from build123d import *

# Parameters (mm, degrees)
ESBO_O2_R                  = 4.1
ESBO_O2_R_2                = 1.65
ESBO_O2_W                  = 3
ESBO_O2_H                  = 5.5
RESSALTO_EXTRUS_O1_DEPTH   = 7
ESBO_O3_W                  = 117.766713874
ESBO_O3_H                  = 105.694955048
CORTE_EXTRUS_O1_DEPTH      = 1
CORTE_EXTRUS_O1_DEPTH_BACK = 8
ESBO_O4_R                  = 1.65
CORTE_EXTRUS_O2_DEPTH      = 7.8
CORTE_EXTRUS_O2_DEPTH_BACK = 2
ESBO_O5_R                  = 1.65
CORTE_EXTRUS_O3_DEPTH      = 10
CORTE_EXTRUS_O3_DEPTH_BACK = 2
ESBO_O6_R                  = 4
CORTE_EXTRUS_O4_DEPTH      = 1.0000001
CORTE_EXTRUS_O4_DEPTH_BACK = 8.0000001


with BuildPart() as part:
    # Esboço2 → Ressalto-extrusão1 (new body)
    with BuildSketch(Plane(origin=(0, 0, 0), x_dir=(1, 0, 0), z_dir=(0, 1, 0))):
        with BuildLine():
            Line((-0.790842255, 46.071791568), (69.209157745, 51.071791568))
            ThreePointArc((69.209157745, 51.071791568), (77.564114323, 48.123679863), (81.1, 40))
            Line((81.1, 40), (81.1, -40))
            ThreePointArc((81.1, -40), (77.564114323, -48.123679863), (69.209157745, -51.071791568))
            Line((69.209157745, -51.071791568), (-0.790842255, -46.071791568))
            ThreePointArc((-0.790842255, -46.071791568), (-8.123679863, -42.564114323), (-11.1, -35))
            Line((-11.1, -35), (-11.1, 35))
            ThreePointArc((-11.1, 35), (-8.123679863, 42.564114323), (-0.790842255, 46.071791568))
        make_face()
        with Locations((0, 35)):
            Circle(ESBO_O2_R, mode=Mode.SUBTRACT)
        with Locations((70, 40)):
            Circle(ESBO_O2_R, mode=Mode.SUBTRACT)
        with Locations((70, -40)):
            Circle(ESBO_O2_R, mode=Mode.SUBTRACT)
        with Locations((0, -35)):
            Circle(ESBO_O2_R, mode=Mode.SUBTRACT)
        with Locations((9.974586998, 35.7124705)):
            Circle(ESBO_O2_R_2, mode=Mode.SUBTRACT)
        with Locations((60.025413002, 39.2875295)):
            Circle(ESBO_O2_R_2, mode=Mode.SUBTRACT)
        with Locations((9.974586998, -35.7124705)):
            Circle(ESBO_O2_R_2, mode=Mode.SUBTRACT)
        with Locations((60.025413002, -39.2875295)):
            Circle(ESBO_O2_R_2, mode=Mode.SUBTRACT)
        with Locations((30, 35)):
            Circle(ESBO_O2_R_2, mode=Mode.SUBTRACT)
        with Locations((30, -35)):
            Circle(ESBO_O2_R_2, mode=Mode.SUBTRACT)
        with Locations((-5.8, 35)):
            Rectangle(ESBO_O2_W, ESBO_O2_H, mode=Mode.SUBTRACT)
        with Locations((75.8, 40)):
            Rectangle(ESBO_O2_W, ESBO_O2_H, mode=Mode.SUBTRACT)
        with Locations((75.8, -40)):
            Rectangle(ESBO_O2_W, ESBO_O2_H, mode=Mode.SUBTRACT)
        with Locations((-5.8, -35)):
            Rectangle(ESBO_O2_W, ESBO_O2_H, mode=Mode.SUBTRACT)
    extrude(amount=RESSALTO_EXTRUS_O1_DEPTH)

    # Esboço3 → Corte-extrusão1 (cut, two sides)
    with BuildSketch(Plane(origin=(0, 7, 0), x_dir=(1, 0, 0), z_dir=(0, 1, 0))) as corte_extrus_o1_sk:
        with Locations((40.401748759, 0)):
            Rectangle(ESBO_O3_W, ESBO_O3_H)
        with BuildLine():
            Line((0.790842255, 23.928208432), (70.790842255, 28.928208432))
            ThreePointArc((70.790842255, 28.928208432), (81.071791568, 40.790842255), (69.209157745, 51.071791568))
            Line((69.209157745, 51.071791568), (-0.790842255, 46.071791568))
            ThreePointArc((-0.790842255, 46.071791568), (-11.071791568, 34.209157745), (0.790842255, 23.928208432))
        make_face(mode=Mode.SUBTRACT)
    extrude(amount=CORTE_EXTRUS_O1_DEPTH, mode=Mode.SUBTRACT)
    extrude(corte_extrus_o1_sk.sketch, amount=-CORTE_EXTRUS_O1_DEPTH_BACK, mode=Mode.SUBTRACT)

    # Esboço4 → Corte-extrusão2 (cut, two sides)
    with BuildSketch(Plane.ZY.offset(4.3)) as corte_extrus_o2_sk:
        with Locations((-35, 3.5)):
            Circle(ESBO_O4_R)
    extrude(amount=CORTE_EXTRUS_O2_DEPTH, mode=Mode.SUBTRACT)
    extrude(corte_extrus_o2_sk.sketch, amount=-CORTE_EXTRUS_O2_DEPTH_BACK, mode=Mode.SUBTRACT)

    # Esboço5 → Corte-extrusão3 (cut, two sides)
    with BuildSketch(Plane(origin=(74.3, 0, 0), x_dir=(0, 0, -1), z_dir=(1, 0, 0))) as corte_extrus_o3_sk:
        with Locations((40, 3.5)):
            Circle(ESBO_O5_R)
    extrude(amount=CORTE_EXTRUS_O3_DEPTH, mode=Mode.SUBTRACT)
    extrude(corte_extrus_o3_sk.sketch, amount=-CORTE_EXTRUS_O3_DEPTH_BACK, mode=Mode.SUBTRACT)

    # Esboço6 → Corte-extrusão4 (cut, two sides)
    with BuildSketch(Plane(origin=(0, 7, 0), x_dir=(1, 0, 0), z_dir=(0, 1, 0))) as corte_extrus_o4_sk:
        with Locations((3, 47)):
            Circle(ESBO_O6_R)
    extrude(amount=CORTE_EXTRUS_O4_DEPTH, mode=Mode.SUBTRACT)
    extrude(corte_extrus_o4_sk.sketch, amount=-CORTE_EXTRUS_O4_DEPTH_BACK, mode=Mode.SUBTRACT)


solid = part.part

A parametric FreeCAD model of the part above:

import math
import FreeCAD as App
import Part
import Sketcher

V = App.Vector
Q = App.Units.Quantity

doc = App.newDocument("Part")
body = doc.addObject("PartDesign::Body", "Body")

# Sketch on XZ plane
sketch1 = body.newObject("Sketcher::SketchObject", "Sketch")
sketch1.AttachmentSupport = (doc.getObject("XZ_Plane"), [""])
sketch1.MapMode = "FlatFace"
sketch1.addGeometry(Part.LineSegment(V(69.2, -51.1, 0), V(-0.8, -46.1, 0)), False)
sketch1.addGeometry(Part.ArcOfCircle(Part.Circle(V(0, -35, 0), V(0, 0, 1), 11.1), math.radians(180), math.radians(266)), False)
sketch1.addGeometry(Part.LineSegment(V(-11.1, -35, 0), V(-11.1, 35, 0)), False)
sketch1.addGeometry(Part.ArcOfCircle(Part.Circle(V(0, 35, 0), V(0, 0, 1), 11.1), math.radians(94), math.radians(180)), False)
sketch1.addGeometry(Part.LineSegment(V(-0.8, 46.1, 0), V(69.2, 51.1, 0)), False)
sketch1.addGeometry(Part.ArcOfCircle(Part.Circle(V(70, 40, 0), V(0, 0, 1), 11.1), math.radians(0), math.radians(94)), False)
sketch1.addGeometry(Part.LineSegment(V(81.1, 40, 0), V(81.1, -40, 0)), False)
sketch1.addGeometry(Part.ArcOfCircle(Part.Circle(V(70, -40, 0), V(0, 0, 1), 11.1), math.radians(-94), math.radians(0)), False)
sketch1.addGeometry(Part.LineSegment(V(74.3, 42.8, 0), V(74.3, 37.2, 0)), False)
sketch1.addGeometry(Part.LineSegment(V(74.3, 37.2, 0), V(77.3, 37.2, 0)), False)
sketch1.addGeometry(Part.LineSegment(V(77.3, 37.2, 0), V(77.3, 42.8, 0)), False)
sketch1.addGeometry(Part.LineSegment(V(77.3, 42.8, 0), V(74.3, 42.8, 0)), False)
sketch1.addGeometry(Part.Circle(V(70, 40, 0), V(0, 0, 1), 4.1), False)
sketch1.addGeometry(Part.Circle(V(60, 39.3, 0), V(0, 0, 1), 1.6), False)
sketch1.addGeometry(Part.Circle(V(30, 35, 0), V(0, 0, 1), 1.6), False)
sketch1.addGeometry(Part.Circle(V(10, 35.7, 0), V(0, 0, 1), 1.6), False)
sketch1.addGeometry(Part.Circle(V(0, 35, 0), V(0, 0, 1), 4.1), False)
sketch1.addGeometry(Part.LineSegment(V(-7.3, 37.8, 0), V(-7.3, 32.2, 0)), False)
sketch1.addGeometry(Part.LineSegment(V(-7.3, 32.2, 0), V(-4.3, 32.2, 0)), False)
sketch1.addGeometry(Part.LineSegment(V(-4.3, 32.2, 0), V(-4.3, 37.8, 0)), False)
sketch1.addGeometry(Part.LineSegment(V(-4.3, 37.8, 0), V(-7.3, 37.8, 0)), False)
sketch1.addGeometry(Part.LineSegment(V(74.3, -37.2, 0), V(74.3, -42.8, 0)), False)
sketch1.addGeometry(Part.LineSegment(V(74.3, -42.8, 0), V(77.3, -42.8, 0)), False)
sketch1.addGeometry(Part.LineSegment(V(77.3, -42.8, 0), V(77.3, -37.2, 0)), False)
sketch1.addGeometry(Part.LineSegment(V(77.3, -37.2, 0), V(74.3, -37.2, 0)), False)
sketch1.addGeometry(Part.Circle(V(70, -40, 0), V(0, 0, 1), 4.1), False)
sketch1.addGeometry(Part.Circle(V(60, -39.3, 0), V(0, 0, 1), 1.6), False)
sketch1.addGeometry(Part.Circle(V(30, -35, 0), V(0, 0, 1), 1.6), False)
sketch1.addGeometry(Part.Circle(V(10, -35.7, 0), V(0, 0, 1), 1.6), False)
sketch1.addGeometry(Part.Circle(V(0, -35, 0), V(0, 0, 1), 4.1), False)
sketch1.addGeometry(Part.LineSegment(V(-7.3, -32.2, 0), V(-7.3, -37.8, 0)), False)
sketch1.addGeometry(Part.LineSegment(V(-7.3, -37.8, 0), V(-4.3, -37.8, 0)), False)
sketch1.addGeometry(Part.LineSegment(V(-4.3, -37.8, 0), V(-4.3, -32.2, 0)), False)
sketch1.addGeometry(Part.LineSegment(V(-4.3, -32.2, 0), V(-7.3, -32.2, 0)), False)
sketch1.addConstraint(Sketcher.Constraint("Tangent", 0, 2, 1, 2))
sketch1.addConstraint(Sketcher.Constraint("Tangent", 1, 1, 2, 1))
sketch1.addConstraint(Sketcher.Constraint("Tangent", 2, 2, 3, 2))
sketch1.addConstraint(Sketcher.Constraint("Tangent", 3, 1, 4, 1))
sketch1.addConstraint(Sketcher.Constraint("Tangent", 4, 2, 5, 2))
sketch1.addConstraint(Sketcher.Constraint("Tangent", 5, 1, 6, 1))
sketch1.addConstraint(Sketcher.Constraint("Tangent", 6, 2, 7, 2))
sketch1.addConstraint(Sketcher.Constraint("Tangent", 7, 1, 0, 1))
sketch1.addConstraint(Sketcher.Constraint("Coincident", 8, 2, 9, 1))
sketch1.addConstraint(Sketcher.Constraint("Coincident", 9, 2, 10, 1))
sketch1.addConstraint(Sketcher.Constraint("Coincident", 10, 2, 11, 1))
sketch1.addConstraint(Sketcher.Constraint("Coincident", 11, 2, 8, 1))
sketch1.addConstraint(Sketcher.Constraint("Coincident", 17, 2, 18, 1))
sketch1.addConstraint(Sketcher.Constraint("Coincident", 18, 2, 19, 1))
sketch1.addConstraint(Sketcher.Constraint("Coincident", 19, 2, 20, 1))
sketch1.addConstraint(Sketcher.Constraint("Coincident", 20, 2, 17, 1))
sketch1.addConstraint(Sketcher.Constraint("Coincident", 21, 2, 22, 1))
sketch1.addConstraint(Sketcher.Constraint("Coincident", 22, 2, 23, 1))
sketch1.addConstraint(Sketcher.Constraint("Coincident", 23, 2, 24, 1))
sketch1.addConstraint(Sketcher.Constraint("Coincident", 24, 2, 21, 1))
sketch1.addConstraint(Sketcher.Constraint("Coincident", 30, 2, 31, 1))
sketch1.addConstraint(Sketcher.Constraint("Coincident", 31, 2, 32, 1))
sketch1.addConstraint(Sketcher.Constraint("Coincident", 32, 2, 33, 1))
sketch1.addConstraint(Sketcher.Constraint("Coincident", 33, 2, 30, 1))
sketch1.addConstraint(Sketcher.Constraint("Vertical", 2))
sketch1.addConstraint(Sketcher.Constraint("Vertical", 6))
sketch1.addConstraint(Sketcher.Constraint("Vertical", 8))
sketch1.addConstraint(Sketcher.Constraint("Horizontal", 9))
sketch1.addConstraint(Sketcher.Constraint("Vertical", 10))
sketch1.addConstraint(Sketcher.Constraint("Horizontal", 11))
sketch1.addConstraint(Sketcher.Constraint("Vertical", 17))
sketch1.addConstraint(Sketcher.Constraint("Horizontal", 18))
sketch1.addConstraint(Sketcher.Constraint("Vertical", 19))
sketch1.addConstraint(Sketcher.Constraint("Horizontal", 20))
sketch1.addConstraint(Sketcher.Constraint("Vertical", 21))
sketch1.addConstraint(Sketcher.Constraint("Horizontal", 22))
sketch1.addConstraint(Sketcher.Constraint("Vertical", 23))
sketch1.addConstraint(Sketcher.Constraint("Horizontal", 24))
sketch1.addConstraint(Sketcher.Constraint("Vertical", 30))
sketch1.addConstraint(Sketcher.Constraint("Horizontal", 31))
sketch1.addConstraint(Sketcher.Constraint("Vertical", 32))
sketch1.addConstraint(Sketcher.Constraint("Horizontal", 33))
sketch1.addConstraint(Sketcher.Constraint("Coincident", 12, 3, 5, 3))
sketch1.addConstraint(Sketcher.Constraint("Coincident", 16, 3, 3, 3))
sketch1.addConstraint(Sketcher.Constraint("Coincident", 25, 3, 7, 3))
sketch1.addConstraint(Sketcher.Constraint("Coincident", 29, 3, 1, 3))
sketch1.addConstraint(Sketcher.Constraint("Equal", 1, 3))
sketch1.addConstraint(Sketcher.Constraint("Equal", 3, 5))
sketch1.addConstraint(Sketcher.Constraint("Equal", 5, 7))
sketch1.addConstraint(Sketcher.Constraint("Equal", 13, 14))
sketch1.addConstraint(Sketcher.Constraint("Equal", 14, 15))
sketch1.addConstraint(Sketcher.Constraint("Equal", 12, 16))
sketch1.addConstraint(Sketcher.Constraint("Equal", 16, 25))
sketch1.addConstraint(Sketcher.Constraint("Equal", 15, 26))
sketch1.addConstraint(Sketcher.Constraint("Equal", 26, 27))
sketch1.addConstraint(Sketcher.Constraint("Equal", 27, 28))
sketch1.addConstraint(Sketcher.Constraint("Equal", 25, 29))
sketch1.addConstraint(Sketcher.Constraint("Symmetric", 1, 3, 3, 3, -1, 1))
sketch1.addConstraint(Sketcher.Constraint("Symmetric", 13, 3, 26, 3, -1))
sketch1.addConstraint(Sketcher.Constraint("Symmetric", 14, 3, 27, 3, -1))
sketch1.addConstraint(Sketcher.Constraint("Symmetric", 15, 3, 28, 3, -1))
sketch1.addConstraint(Sketcher.Constraint("Symmetric", 11, 2, 21, 2, -1))
sketch1.addConstraint(Sketcher.Constraint("Symmetric", 9, 2, 23, 2, -1))
sketch1.addConstraint(Sketcher.Constraint("Symmetric", 20, 2, 30, 2, -1))
sketch1.addConstraint(Sketcher.Constraint("Symmetric", 18, 2, 32, 2, -1))
sketch1.addConstraint(Sketcher.Constraint("Horizontal", 3, 3, 14, 3))
sketch1.addConstraint(Sketcher.Constraint("Vertical", 0, 2, 3, 1))
sketch1.addConstraint(Sketcher.Constraint("Equal", 11, 18))
sketch1.addConstraint(Sketcher.Constraint("Equal", 10, 17))
sketch1.addConstraint(Sketcher.Constraint("Diameter", 12, Q("8.2 mm")))
sketch1.addConstraint(Sketcher.Constraint("Diameter", 13, Q("3.3 mm")))
sketch1.addConstraint(Sketcher.Constraint("Radius", 1, Q("11.1 mm")))
sketch1.addConstraint(Sketcher.Constraint("DistanceX", 9, 1, 9, 2, Q("3 mm")))
sketch1.addConstraint(Sketcher.Constraint("DistanceY", 2, 1, 2, 2, Q("70 mm")))
sketch1.addConstraint(Sketcher.Constraint("DistanceY", 6, 2, 6, 1, Q("80 mm")))
sketch1.addConstraint(Sketcher.Constraint("DistanceY", 8, 2, 8, 1, Q("5.5 mm")))
sketch1.addConstraint(Sketcher.Constraint("DistanceX", -1, 1, 5, 3, Q("70 mm")))
sketch1.addConstraint(Sketcher.Constraint("DistanceX", -1, 1, 14, 3, Q("30 mm")))
sketch1.addConstraint(Sketcher.Constraint("DistanceX", -1, 1, 8, 2, Q("74.3 mm")))
sketch1.addConstraint(Sketcher.Constraint("DistanceX", 17, 2, -1, 1, Q("7.3 mm")))
sketch1.addConstraint(Sketcher.Constraint("DistanceY", -1, 1, 8, 2, Q("37.25 mm")))
sketch1.addConstraint(Sketcher.Constraint("DistanceY", -1, 1, 17, 2, Q("32.25 mm")))
sketch1.addConstraint(Sketcher.Constraint("DistanceY", -1, 1, 13, 3, Q("39.287529 mm")))
sketch1.addConstraint(Sketcher.Constraint("DistanceY", -1, 1, 15, 3, Q("35.712471 mm")))
sketch1.addConstraint(Sketcher.Constraint("DistanceX", 0, 2, 28, 3, Q("10.765429 mm")))
sketch1.addConstraint(Sketcher.Constraint("DistanceX", -1, 1, 13, 3, Q("60.025413 mm")))
pad1 = body.newObject("PartDesign::Pad", "Pad")
pad1.Profile = sketch1
pad1.Length = 7
pad1.Reversed = True

# Sketch on XZ plane
sketch2 = body.newObject("Sketcher::SketchObject", "Sketch001")
sketch2.AttachmentSupport = (doc.getObject("XZ_Plane"), [""])
sketch2.MapMode = "FlatFace"
sketch2.AttachmentOffset = App.Placement(V(0, 0, -7), App.Rotation())
sketch2.addGeometry(Part.LineSegment(V(-18, -53, 0), V(-18, 53, 0)), False)
sketch2.addGeometry(Part.LineSegment(V(-18, 53, 0), V(99, 53, 0)), False)
sketch2.addGeometry(Part.LineSegment(V(99, 53, 0), V(99, -53, 0)), False)
sketch2.addGeometry(Part.LineSegment(V(99, -53, 0), V(-18, -53, 0)), False)
sketch2.addGeometry(Part.LineSegment(V(71, -29, 0), V(1, -24, 0)), False)
sketch2.addGeometry(Part.ArcOfCircle(Part.Circle(V(0, -35, 0), V(0, 0, 1), 11), math.radians(86), math.radians(266)), False)
sketch2.addGeometry(Part.LineSegment(V(-1, -46, 0), V(69, -51, 0)), False)
sketch2.addGeometry(Part.ArcOfCircle(Part.Circle(V(70, -40, 0), V(0, 0, 1), 11), math.radians(-94), math.radians(86)), False)
sketch2.addConstraint(Sketcher.Constraint("Coincident", 0, 2, 1, 1))
sketch2.addConstraint(Sketcher.Constraint("Coincident", 1, 2, 2, 1))
sketch2.addConstraint(Sketcher.Constraint("Coincident", 2, 2, 3, 1))
sketch2.addConstraint(Sketcher.Constraint("Coincident", 3, 2, 0, 1))
sketch2.addConstraint(Sketcher.Constraint("Tangent", 4, 2, 5, 1))
sketch2.addConstraint(Sketcher.Constraint("Tangent", 5, 2, 6, 1))
sketch2.addConstraint(Sketcher.Constraint("Tangent", 6, 2, 7, 1))
sketch2.addConstraint(Sketcher.Constraint("Tangent", 7, 2, 4, 1))
sketch2.addConstraint(Sketcher.Constraint("Vertical", 0))
sketch2.addConstraint(Sketcher.Constraint("Horizontal", 1))
sketch2.addConstraint(Sketcher.Constraint("Vertical", 2))
sketch2.addConstraint(Sketcher.Constraint("Horizontal", 3))
sketch2.addConstraint(Sketcher.Constraint("Equal", 5, 7))
sketch2.addConstraint(Sketcher.Constraint("PointOnObject", 5, 3, -2))
sketch2.addConstraint(Sketcher.Constraint("Radius", 5, Q("11.1 mm")))
sketch2.addConstraint(Sketcher.Constraint("DistanceY", 5, 3, -1, 1, Q("35 mm")))
sketch2.addConstraint(Sketcher.Constraint("DistanceX", -1, 1, 7, 3, Q("70 mm")))
sketch2.addConstraint(Sketcher.Constraint("DistanceY", 7, 3, -1, 1, Q("40 mm")))
sketch2.addConstraint(Sketcher.Constraint("DistanceX", 1, 1, 1, 2, Q("117.766714 mm")))
sketch2.addConstraint(Sketcher.Constraint("DistanceY", 0, 1, 0, 2, Q("105.694955 mm")))
sketch2.addConstraint(Sketcher.Constraint("DistanceX", 0, 2, -1, 1, Q("18.481608 mm")))
sketch2.addConstraint(Sketcher.Constraint("DistanceY", 3, 2, 4, 2, Q("28.919269 mm")))
pocket1 = body.newObject("PartDesign::Pocket", "Pocket")
pocket1.Profile = sketch2
pocket1.Type = "ThroughAll"
pocket1.Midplane = True

# Sketch on YZ plane
sketch3 = body.newObject("Sketcher::SketchObject", "Sketch002")
sketch3.AttachmentSupport = (doc.getObject("YZ_Plane"), [""])
sketch3.MapMode = "FlatFace"
sketch3.AttachmentOffset = App.Placement(V(0, 0, -4.3), App.Rotation())
sketch3.addGeometry(Part.Circle(V(3.5, -35, 0), V(0, 0, 1), 1.6), False)
sketch3.addConstraint(Sketcher.Constraint("Diameter", 0, Q("3.3 mm")))
sketch3.addConstraint(Sketcher.Constraint("DistanceY", 0, 3, -1, 1, Q("35 mm")))
sketch3.addConstraint(Sketcher.Constraint("DistanceX", -1, 1, 0, 3, Q("3.5 mm")))
pocket2 = body.newObject("PartDesign::Pocket", "Pocket001")
pocket2.Profile = sketch3
pocket2.Type = "TwoLengths"
pocket2.Length = 7.8
pocket2.Length2 = 2

# Sketch on YZ plane
sketch4 = body.newObject("Sketcher::SketchObject", "Sketch003")
sketch4.AttachmentSupport = (doc.getObject("YZ_Plane"), [""])
sketch4.MapMode = "FlatFace"
sketch4.AttachmentOffset = App.Placement(V(0, 0, 74.3), App.Rotation())
sketch4.addGeometry(Part.Circle(V(3.5, -40, 0), V(0, 0, 1), 1.6), False)
sketch4.addConstraint(Sketcher.Constraint("Diameter", 0, Q("3.3 mm")))
sketch4.addConstraint(Sketcher.Constraint("DistanceY", 0, 3, -1, 1, Q("40 mm")))
sketch4.addConstraint(Sketcher.Constraint("DistanceX", -1, 1, 0, 3, Q("3.5 mm")))
pocket3 = body.newObject("PartDesign::Pocket", "Pocket002")
pocket3.Profile = sketch4
pocket3.Type = "TwoLengths"
pocket3.Length = 10
pocket3.Length2 = 2
pocket3.Reversed = True

# Sketch on XZ plane
sketch5 = body.newObject("Sketcher::SketchObject", "Sketch004")
sketch5.AttachmentSupport = (doc.getObject("XZ_Plane"), [""])
sketch5.MapMode = "FlatFace"
sketch5.AttachmentOffset = App.Placement(V(0, 0, -7), App.Rotation())
sketch5.addGeometry(Part.Circle(V(3, -47, 0), V(0, 0, 1), 4), False)
sketch5.addConstraint(Sketcher.Constraint("Diameter", 0, Q("8 mm")))
sketch5.addConstraint(Sketcher.Constraint("DistanceX", -1, 1, 0, 3, Q("3 mm")))
sketch5.addConstraint(Sketcher.Constraint("DistanceY", 0, 3, -1, 1, Q("47 mm")))
pocket4 = body.newObject("PartDesign::Pocket", "Pocket003")
pocket4.Profile = sketch5
pocket4.Type = "ThroughAll"
pocket4.Midplane = True

doc.recompute()
